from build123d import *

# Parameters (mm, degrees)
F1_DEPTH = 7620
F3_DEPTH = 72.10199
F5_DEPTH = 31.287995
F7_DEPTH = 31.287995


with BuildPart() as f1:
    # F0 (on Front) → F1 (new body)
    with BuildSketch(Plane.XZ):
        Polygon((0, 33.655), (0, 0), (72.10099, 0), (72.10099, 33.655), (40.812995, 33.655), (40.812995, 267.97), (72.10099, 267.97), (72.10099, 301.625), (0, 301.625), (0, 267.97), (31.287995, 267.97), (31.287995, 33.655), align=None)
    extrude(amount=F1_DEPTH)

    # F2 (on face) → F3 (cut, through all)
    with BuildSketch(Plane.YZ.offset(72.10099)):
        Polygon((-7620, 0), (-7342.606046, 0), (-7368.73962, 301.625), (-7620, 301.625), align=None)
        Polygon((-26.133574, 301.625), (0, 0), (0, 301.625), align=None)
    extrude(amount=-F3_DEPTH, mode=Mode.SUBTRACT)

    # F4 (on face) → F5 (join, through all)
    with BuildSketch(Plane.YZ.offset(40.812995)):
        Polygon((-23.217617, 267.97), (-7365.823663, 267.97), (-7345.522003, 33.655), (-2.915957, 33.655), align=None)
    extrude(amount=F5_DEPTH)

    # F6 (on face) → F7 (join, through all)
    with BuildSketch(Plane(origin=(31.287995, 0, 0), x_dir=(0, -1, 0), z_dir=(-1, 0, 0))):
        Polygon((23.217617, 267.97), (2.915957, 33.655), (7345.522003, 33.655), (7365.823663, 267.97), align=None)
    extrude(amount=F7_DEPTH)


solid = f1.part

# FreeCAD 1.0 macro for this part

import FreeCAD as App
import Part
import Sketcher
from FreeCAD import Vector
Q = App.Units.Quantity


def add_polygon(sketch, points):
    """Adds a closed chain of lines whose ends are joined by coincident constraints."""
    first, n = sketch.GeometryCount, len(points)
    for a, b in zip(points, points[1:] + points[:1]):
        sketch.addGeometry(Part.LineSegment(App.Vector(*a, 0), App.Vector(*b, 0)), False)
    for i in range(n):
        sketch.addConstraint(Sketcher.Constraint("Coincident", first + i, 2, first + (i + 1) % n, 1))

doc = App.newDocument("Part")
body = doc.addObject("PartDesign::Body", "Body")

# Sketch on XZ plane
sketch1 = body.newObject("Sketcher::SketchObject", "Sketch")
sketch1.AttachmentSupport = (doc.getObject("XZ_Plane"), [""])
sketch1.MapMode = "FlatFace"
add_polygon(sketch1, [(0, 34), (0, 0), (72, 0), (72, 34), (41, 34), (41, 268), (72, 268), (72, 302), (0, 302), (0, 268), (31, 268), (31, 34)])  # lines 0-11
sketch1.addConstraint([
    Sketcher.Constraint("Vertical", 0),
    Sketcher.Constraint("Horizontal", 1),
    Sketcher.Constraint("Vertical", 2),
    Sketcher.Constraint("Horizontal", 3),
    Sketcher.Constraint("Vertical", 4),
    Sketcher.Constraint("Horizontal", 5),
    Sketcher.Constraint("Vertical", 6),
    Sketcher.Constraint("Horizontal", 7),
    Sketcher.Constraint("Vertical", 8),
    Sketcher.Constraint("Horizontal", 9),
    Sketcher.Constraint("Vertical", 10),
    Sketcher.Constraint("Horizontal", 11),
    Sketcher.Constraint("Coincident", 0, 2, -1, 1),
    Sketcher.Constraint("PointOnObject", 7, 2, -2),
    Sketcher.Constraint("Horizontal", 5, 2, 8, 2),
    Sketcher.Constraint("Horizontal", 3, 2, 10, 2),
    Sketcher.Constraint("Vertical", 2, 2, 5, 2),
    Sketcher.Constraint("Equal", 5, 9),
    Sketcher.Constraint("Equal", 2, 6),
    Sketcher.Constraint("DistanceY", 0, 2, 0, 1, Q("1.325 in")),
    Sketcher.Constraint("DistanceY", 4, 1, 4, 2, Q("9.225 in")),
    Sketcher.Constraint("DistanceX", 9, 2, 4, 2, Q("0.375 in")),
    Sketcher.Constraint("DistanceX", 1, 1, 1, 2, 72.10099),
])
pad1 = body.newObject("PartDesign::Pad", "Pad")
pad1.Profile = sketch1
pad1.Length = Q("300 in")

# Sketch on YZ plane
sketch2 = body.newObject("Sketcher::SketchObject", "Sketch001")
sketch2.AttachmentSupport = (doc.getObject("YZ_Plane"), [""])
sketch2.MapMode = "FlatFace"
sketch2.AttachmentOffset = App.Placement(Vector(0, 0, 72.10099), App.Rotation())
add_polygon(sketch2, [(-7620, 0), (-7343, 0), (-7369, 302), (-7620, 302)])  # lines 0-3
add_polygon(sketch2, [(-26, 302), (0, 0), (0, 302)])  # lines 4-6
sketch2.addConstraint([
    Sketcher.Constraint("Horizontal", 0),
    Sketcher.Constraint("Horizontal", 2),
    Sketcher.Constraint("Vertical", 3),
    Sketcher.Constraint("Vertical", 5),
    Sketcher.Constraint("Horizontal", 6),
    Sketcher.Constraint("Coincident", 4, 2, -1, 1),
    Sketcher.Constraint("PointOnObject", 0, 2, -1),
    Sketcher.Constraint("Parallel", 1, 4),
    Sketcher.Constraint("Horizontal", 2, 2, 5, 2),
    Sketcher.Constraint("DistanceX", 2, 2, -1, 1, Q("300 in")),
    Sketcher.Constraint("DistanceY", 3, 2, 3, 1, Q("11.875 in")),
    Sketcher.Constraint("DistanceX", 2, 2, 2, 1, 251.26038),
    Sketcher.Constraint("DistanceX", 0, 1, 0, 2, 277.393954),
])
pocket1 = body.newObject("PartDesign::Pocket", "Pocket")
pocket1.Profile = sketch2
pocket1.Type = "ThroughAll"

# Sketch on YZ plane
sketch3 = body.newObject("Sketcher::SketchObject", "Sketch002")
sketch3.AttachmentSupport = (doc.getObject("YZ_Plane"), [""])
sketch3.MapMode = "FlatFace"
sketch3.AttachmentOffset = App.Placement(Vector(0, 0, 40.812995), App.Rotation())
add_polygon(sketch3, [(-23, 268), (-7366, 268), (-7346, 34), (-3, 34)])  # lines 0-3
sketch3.addConstraint([
    Sketcher.Constraint("Horizontal", 0),
    Sketcher.Constraint("Horizontal", 2),
    Sketcher.Constraint("Parallel", 1, 3),
    Sketcher.Constraint("DistanceY", -1, 1, 0, 2, Q("10.55 in")),
    Sketcher.Constraint("DistanceY", -1, 1, 1, 2, Q("1.325 in")),
    Sketcher.Constraint("Distance", 1, 235.19285),
    Sketcher.Constraint("DistanceX", 0, 2, 0, 1, 7342.606046),
    Sketcher.Constraint("DistanceX", 0, 2, -1, 1, 7365.823663),
])
pad2 = body.newObject("PartDesign::Pad", "Pad001")
pad2.Profile = sketch3
pad2.Length = 31.287995

# Sketch on YZ plane
sketch4 = body.newObject("Sketcher::SketchObject", "Sketch003")
sketch4.AttachmentSupport = (doc.getObject("YZ_Plane"), [""])
sketch4.MapMode = "FlatFace"
sketch4.AttachmentOffset = App.Placement(Vector(0, 0, 31.287995), App.Rotation())
add_polygon(sketch4, [(-23, 268), (-3, 34), (-7346, 34), (-7366, 268)])  # lines 0-3
sketch4.addConstraint([
    Sketcher.Constraint("Horizontal", 1),
    Sketcher.Constraint("Horizontal", 3),
    Sketcher.Constraint("Parallel", 0, 2),
    Sketcher.Constraint("DistanceY", -1, 1, 2, 2, Q("10.55 in")),
    Sketcher.Constraint("DistanceY", -1, 1, 0, 2, Q("1.325 in")),
    Sketcher.Constraint("Distance", 0, 235.19285),
    Sketcher.Constraint("DistanceX", 1, 2, 1, 1, 7342.606046),
    Sketcher.Constraint("DistanceX", 0, 2, -1, 1, 2.915957),
])
pad3 = body.newObject("PartDesign::Pad", "Pad002")
pad3.Profile = sketch4
pad3.Length = 31.287995
pad3.Reversed = True

doc.recompute()
